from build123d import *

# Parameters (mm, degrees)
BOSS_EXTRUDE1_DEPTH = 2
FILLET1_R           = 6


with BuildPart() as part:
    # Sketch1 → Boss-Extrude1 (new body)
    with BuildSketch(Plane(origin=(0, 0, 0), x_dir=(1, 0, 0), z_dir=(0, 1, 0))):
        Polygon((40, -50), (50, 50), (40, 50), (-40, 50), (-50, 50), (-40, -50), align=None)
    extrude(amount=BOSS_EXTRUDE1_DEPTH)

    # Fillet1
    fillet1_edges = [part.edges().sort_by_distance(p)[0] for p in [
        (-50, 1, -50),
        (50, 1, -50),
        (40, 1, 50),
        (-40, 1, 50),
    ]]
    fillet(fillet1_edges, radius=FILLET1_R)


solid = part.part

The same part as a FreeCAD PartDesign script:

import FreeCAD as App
import Part
import Sketcher

V = App.Vector
Q = App.Units.Quantity


def edges_at(feature, points):
    """Names of the edges that pass closest to the given points."""
    edges = feature.Shape.Edges
    near = lambda p: min(range(len(edges)), key=lambda i: edges[i].distToShape(Part.Vertex(*p))[0])
    return sorted({f"Edge{near(p) + 1}" for p in points})

doc = App.newDocument("Part")
body = doc.addObject("PartDesign::Body", "Body")

sketch1 = body.newObject("Sketcher::SketchObject", "Sketch")
sketch1.AttachmentSupport = (doc.getObject("XZ_Plane"), [""])
sketch1.MapMode = "FlatFace"
sketch1.addGeometry(Part.LineSegment(V(40, 50, 0), V(50, -50, 0)), False)
sketch1.addGeometry(Part.LineSegment(V(50, -50, 0), V(-50, -50, 0)), False)
sketch1.addGeometry(Part.LineSegment(V(-50, -50, 0), V(-40, 50, 0)), False)
sketch1.addGeometry(Part.LineSegment(V(-40, 50, 0), V(40, 50, 0)), False)
sketch1.addConstraint(Sketcher.Constraint("Coincident", 0, 2, 1, 1))
sketch1.addConstraint(Sketcher.Constraint("Coincident", 1, 2, 2, 1))
sketch1.addConstraint(Sketcher.Constraint("Coincident", 2, 2, 3, 1))
sketch1.addConstraint(Sketcher.Constraint("Coincident", 3, 2, 0, 1))
sketch1.addConstraint(Sketcher.Constraint("Horizontal", 1))
sketch1.addConstraint(Sketcher.Constraint("Horizontal", 3))
sketch1.addConstraint(Sketcher.Constraint("Equal", 0, 2))
sketch1.addConstraint(Sketcher.Constraint("DistanceX", 1, 2, 1, 1, Q("100 mm")))
sketch1.addConstraint(Sketcher.Constraint("DistanceX", 3, 1, 3, 2, Q("80 mm")))
sketch1.addConstraint(Sketcher.Constraint("DistanceX", -1, 1, 0, 2, Q("50 mm")))
sketch1.addConstraint(Sketcher.Constraint("DistanceY", 0, 2, -1, 1, Q("50 mm")))
sketch1.addConstraint(Sketcher.Constraint("DistanceY", -1, 1, 2, 2, Q("50 mm")))
pad1 = body.newObject("PartDesign::Pad", "Pad")
pad1.Profile = sketch1
pad1.Length = 2
pad1.Reversed = True
doc.recompute()

fillet = body.newObject("PartDesign::Fillet", "Fillet")
fillet.Base = (pad1, edges_at(pad1, [
    (-50, 1, -50),
    (50, 1, -50),
    (40, 1, 50),
    (-40, 1, 50),
]))
fillet.Radius = 6

doc.recompute()
